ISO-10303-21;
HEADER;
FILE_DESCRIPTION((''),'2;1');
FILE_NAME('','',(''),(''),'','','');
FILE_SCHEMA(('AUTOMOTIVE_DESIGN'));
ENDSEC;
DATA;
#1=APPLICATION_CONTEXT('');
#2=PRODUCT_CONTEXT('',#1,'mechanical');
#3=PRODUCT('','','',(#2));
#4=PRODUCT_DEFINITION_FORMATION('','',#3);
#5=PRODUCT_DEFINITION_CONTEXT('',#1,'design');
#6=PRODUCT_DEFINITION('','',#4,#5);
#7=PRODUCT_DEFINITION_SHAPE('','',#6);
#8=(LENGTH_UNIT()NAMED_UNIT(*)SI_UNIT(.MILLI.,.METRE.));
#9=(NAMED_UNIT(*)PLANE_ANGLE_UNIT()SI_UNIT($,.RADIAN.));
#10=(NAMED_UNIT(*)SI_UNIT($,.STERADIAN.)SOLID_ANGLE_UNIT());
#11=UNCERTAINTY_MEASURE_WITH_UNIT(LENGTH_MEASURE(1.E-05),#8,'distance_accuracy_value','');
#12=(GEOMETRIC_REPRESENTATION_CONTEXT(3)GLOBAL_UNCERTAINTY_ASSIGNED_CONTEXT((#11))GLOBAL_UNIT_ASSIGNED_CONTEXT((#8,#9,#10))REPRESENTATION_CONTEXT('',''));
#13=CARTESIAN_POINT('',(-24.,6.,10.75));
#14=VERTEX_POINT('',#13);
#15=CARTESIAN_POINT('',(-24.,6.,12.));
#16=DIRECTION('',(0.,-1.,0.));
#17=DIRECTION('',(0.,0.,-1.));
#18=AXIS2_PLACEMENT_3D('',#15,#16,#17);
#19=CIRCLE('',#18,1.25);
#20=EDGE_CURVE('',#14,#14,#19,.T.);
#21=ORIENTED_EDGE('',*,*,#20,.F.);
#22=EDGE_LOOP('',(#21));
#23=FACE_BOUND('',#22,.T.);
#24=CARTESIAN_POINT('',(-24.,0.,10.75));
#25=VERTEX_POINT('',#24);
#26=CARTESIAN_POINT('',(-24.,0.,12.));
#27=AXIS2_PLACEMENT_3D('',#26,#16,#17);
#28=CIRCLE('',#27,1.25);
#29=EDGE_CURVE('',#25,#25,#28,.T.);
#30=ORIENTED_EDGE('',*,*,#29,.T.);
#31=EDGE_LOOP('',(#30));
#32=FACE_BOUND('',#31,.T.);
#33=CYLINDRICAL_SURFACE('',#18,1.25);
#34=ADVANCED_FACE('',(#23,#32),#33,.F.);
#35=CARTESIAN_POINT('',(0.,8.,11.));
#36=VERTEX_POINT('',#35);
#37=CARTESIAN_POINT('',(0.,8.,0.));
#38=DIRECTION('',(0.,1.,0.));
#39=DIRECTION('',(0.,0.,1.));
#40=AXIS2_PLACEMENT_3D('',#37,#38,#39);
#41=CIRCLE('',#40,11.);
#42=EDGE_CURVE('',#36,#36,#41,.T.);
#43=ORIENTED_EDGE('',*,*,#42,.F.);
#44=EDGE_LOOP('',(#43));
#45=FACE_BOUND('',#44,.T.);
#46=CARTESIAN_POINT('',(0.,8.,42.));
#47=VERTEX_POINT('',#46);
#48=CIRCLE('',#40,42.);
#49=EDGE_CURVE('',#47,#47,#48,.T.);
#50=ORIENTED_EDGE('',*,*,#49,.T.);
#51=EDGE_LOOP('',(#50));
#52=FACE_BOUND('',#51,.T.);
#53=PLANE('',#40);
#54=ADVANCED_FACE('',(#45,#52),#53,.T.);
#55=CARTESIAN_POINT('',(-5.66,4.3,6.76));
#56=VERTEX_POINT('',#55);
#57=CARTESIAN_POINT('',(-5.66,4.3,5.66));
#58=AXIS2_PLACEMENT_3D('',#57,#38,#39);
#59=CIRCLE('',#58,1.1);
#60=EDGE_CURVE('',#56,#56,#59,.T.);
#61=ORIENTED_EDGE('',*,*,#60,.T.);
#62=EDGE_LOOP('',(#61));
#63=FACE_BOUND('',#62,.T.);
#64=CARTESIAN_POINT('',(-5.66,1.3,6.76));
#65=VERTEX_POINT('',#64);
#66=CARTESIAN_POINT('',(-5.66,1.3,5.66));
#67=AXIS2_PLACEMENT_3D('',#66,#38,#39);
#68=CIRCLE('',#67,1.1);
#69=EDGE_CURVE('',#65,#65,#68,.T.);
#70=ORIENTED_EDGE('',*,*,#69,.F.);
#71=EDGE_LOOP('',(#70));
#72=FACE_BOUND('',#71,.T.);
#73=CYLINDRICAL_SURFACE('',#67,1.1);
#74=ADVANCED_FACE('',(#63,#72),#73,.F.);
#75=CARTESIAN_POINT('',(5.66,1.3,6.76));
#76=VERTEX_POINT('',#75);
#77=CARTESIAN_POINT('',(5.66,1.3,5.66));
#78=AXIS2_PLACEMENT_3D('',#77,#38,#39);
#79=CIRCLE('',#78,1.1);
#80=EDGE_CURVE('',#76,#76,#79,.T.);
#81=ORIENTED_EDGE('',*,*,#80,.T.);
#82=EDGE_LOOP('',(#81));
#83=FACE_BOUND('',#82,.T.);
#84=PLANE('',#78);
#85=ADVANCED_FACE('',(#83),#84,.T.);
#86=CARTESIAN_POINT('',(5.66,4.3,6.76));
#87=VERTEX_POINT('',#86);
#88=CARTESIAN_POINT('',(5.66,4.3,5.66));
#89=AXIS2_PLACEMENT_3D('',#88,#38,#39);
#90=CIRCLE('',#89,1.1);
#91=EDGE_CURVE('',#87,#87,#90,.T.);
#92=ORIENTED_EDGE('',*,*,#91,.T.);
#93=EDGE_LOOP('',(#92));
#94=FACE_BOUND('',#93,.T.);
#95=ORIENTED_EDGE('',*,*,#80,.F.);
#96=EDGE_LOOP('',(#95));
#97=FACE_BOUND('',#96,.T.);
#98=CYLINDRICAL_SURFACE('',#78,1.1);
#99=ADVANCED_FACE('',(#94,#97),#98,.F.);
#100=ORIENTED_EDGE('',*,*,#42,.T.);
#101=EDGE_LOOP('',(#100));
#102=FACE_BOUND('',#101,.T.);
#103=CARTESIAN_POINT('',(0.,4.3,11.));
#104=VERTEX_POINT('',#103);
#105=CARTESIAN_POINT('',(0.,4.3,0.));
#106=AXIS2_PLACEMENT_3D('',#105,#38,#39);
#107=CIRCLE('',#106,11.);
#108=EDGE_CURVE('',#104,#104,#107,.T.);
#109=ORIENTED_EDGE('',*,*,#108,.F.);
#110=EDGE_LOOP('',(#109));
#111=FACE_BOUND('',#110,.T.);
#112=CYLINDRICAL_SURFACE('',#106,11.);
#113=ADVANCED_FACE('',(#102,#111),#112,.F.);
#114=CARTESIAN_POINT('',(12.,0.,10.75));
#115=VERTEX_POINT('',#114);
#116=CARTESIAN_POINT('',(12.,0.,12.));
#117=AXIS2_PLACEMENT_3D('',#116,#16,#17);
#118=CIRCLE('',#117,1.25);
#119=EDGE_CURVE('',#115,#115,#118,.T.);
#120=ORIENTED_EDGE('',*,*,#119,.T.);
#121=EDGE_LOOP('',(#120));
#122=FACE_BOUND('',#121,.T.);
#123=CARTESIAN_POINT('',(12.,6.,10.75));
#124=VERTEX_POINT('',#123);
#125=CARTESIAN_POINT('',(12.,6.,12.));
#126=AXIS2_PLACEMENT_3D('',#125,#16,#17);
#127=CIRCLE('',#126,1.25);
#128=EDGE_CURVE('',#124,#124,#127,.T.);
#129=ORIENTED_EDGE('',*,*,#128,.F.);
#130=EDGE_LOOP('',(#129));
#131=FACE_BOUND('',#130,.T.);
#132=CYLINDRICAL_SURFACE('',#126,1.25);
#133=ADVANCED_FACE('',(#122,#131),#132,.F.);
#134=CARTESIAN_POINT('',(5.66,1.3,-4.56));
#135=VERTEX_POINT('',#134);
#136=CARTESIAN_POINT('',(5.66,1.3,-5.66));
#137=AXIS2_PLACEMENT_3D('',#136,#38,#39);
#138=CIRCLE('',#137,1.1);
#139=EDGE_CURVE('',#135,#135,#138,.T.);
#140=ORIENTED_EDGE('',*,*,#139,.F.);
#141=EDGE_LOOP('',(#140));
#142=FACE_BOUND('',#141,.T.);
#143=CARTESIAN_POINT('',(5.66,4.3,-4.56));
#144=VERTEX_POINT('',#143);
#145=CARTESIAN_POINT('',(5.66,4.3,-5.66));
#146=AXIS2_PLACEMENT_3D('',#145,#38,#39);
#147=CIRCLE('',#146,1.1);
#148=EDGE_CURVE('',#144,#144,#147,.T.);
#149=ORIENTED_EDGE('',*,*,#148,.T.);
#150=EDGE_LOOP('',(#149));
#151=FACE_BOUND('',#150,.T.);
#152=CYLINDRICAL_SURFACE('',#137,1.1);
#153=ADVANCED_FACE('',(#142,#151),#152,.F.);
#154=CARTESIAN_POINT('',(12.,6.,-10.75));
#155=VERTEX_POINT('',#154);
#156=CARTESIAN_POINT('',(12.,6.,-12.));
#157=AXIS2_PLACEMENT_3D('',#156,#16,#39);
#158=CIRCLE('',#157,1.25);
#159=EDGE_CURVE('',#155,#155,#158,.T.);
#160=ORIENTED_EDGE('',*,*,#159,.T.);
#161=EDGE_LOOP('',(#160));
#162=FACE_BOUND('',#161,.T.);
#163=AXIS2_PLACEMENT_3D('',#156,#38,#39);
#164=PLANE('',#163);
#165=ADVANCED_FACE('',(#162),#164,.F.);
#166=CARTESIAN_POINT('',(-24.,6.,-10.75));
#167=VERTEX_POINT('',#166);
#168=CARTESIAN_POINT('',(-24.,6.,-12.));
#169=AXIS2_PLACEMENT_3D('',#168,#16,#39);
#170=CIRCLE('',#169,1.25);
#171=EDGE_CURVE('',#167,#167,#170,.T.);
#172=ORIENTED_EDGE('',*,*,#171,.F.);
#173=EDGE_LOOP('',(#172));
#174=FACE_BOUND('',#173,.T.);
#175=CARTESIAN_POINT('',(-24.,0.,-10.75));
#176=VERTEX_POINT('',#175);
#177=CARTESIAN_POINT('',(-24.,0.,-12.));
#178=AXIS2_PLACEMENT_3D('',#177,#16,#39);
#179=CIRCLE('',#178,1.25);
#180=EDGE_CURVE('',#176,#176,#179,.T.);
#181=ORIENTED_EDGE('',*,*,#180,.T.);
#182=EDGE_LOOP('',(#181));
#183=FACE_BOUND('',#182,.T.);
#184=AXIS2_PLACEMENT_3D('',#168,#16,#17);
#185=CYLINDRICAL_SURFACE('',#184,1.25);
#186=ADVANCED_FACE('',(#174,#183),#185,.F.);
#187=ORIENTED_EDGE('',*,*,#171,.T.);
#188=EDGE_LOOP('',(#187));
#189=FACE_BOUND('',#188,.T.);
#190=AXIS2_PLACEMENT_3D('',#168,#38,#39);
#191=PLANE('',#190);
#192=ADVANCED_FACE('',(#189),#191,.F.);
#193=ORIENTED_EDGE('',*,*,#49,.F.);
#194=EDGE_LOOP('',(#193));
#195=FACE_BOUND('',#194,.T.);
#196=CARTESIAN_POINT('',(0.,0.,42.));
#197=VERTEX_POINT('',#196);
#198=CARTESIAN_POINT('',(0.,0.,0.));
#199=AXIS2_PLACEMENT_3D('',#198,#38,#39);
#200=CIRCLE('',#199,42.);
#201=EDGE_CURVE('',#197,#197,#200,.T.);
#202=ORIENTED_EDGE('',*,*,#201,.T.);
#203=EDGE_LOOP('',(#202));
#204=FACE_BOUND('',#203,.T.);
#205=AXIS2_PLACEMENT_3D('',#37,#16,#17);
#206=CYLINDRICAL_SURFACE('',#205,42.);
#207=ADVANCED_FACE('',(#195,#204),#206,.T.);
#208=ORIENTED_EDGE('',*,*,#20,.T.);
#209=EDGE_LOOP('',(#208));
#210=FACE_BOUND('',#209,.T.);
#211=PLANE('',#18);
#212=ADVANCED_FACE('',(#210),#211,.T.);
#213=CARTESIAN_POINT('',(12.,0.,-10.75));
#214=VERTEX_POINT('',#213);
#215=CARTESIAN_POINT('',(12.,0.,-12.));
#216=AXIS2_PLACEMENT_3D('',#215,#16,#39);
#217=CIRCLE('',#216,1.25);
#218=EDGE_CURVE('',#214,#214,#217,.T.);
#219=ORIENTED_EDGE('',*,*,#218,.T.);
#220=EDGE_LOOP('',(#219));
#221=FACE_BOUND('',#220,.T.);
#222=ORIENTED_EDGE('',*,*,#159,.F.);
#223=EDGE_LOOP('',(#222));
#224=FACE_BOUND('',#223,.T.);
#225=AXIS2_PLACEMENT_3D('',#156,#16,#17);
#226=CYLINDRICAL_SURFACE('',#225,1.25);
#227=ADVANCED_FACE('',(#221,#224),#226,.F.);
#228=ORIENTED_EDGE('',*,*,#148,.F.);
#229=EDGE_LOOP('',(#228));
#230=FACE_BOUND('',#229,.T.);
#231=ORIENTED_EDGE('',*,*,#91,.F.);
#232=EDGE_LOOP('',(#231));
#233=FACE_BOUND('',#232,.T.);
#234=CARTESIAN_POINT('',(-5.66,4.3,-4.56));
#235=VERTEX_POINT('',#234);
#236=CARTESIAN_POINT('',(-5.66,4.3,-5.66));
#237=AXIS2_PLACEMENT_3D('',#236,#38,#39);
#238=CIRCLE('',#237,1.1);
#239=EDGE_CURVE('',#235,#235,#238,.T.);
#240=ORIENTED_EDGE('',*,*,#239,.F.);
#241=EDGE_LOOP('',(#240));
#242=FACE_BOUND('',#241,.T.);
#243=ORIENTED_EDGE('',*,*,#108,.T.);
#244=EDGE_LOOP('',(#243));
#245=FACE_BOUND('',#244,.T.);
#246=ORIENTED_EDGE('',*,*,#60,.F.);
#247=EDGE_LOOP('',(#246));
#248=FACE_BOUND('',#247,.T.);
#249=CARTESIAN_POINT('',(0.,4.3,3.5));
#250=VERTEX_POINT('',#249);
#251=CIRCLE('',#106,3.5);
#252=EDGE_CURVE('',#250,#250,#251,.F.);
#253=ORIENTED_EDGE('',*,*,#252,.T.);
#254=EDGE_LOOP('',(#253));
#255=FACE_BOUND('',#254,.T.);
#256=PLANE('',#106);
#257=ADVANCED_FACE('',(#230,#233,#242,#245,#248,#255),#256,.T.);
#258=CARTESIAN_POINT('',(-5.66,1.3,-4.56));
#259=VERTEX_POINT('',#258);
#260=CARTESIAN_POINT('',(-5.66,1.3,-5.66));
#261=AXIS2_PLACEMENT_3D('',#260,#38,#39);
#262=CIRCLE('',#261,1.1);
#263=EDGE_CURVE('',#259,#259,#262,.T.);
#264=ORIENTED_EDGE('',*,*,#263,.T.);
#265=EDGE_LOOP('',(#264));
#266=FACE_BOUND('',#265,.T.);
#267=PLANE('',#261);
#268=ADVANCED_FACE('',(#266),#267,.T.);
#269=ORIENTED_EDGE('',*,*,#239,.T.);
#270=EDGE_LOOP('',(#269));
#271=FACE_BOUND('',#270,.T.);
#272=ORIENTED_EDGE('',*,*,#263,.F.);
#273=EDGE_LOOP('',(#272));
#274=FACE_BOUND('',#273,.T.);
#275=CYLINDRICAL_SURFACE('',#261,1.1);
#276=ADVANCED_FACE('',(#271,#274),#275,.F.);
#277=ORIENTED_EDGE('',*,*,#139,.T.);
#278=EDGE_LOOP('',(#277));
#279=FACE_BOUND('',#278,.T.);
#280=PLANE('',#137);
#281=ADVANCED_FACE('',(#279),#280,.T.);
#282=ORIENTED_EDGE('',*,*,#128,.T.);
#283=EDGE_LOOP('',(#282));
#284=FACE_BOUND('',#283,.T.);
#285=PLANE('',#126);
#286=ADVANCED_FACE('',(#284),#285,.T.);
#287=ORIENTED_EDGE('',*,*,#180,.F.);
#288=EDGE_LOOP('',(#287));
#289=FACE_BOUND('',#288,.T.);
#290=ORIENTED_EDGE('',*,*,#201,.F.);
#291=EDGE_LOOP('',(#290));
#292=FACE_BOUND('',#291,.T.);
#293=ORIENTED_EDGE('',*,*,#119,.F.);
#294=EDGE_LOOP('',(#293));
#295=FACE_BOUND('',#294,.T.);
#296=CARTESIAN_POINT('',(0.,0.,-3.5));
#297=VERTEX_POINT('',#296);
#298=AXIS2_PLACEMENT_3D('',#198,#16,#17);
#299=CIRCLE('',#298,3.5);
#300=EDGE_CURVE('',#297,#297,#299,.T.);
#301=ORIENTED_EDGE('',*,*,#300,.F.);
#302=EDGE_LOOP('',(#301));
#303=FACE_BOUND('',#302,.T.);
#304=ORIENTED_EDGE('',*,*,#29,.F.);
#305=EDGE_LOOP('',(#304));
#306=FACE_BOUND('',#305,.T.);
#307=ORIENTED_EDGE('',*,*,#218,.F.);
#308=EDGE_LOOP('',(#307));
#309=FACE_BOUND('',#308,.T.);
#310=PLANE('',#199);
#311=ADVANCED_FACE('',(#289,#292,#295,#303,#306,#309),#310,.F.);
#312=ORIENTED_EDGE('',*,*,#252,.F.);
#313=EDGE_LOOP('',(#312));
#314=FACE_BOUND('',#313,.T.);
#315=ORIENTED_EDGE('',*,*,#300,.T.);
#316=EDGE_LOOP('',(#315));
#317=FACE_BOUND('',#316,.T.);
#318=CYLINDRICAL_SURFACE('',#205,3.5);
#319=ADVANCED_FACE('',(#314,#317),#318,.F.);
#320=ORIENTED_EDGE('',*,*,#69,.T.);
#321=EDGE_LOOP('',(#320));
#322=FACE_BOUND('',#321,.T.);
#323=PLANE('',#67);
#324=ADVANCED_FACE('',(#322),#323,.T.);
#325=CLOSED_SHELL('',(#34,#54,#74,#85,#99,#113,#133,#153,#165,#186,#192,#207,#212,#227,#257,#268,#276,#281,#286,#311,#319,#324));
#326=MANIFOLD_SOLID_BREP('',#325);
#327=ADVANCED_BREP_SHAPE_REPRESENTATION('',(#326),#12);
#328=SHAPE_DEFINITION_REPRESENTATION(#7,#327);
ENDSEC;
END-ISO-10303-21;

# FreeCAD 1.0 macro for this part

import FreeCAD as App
import Part
import Sketcher

V = App.Vector
Q = App.Units.Quantity

doc = App.newDocument("Part")
body = doc.addObject("PartDesign::Body", "Body")

# Sketch on XZ plane
sketch1 = body.newObject("Sketcher::SketchObject", "Sketch")
sketch1.AttachmentSupport = (doc.getObject("XZ_Plane"), [""])
sketch1.MapMode = "FlatFace"
sketch1.addGeometry(Part.Circle(V(0, 0, 0), V(0, 0, 1), 42), False)
sketch1.addConstraint([
    Sketcher.Constraint("Coincident", 0, 3, -1, 1),
    Sketcher.Constraint("Diameter", 0, Q("84 mm")),
])
pad1 = body.newObject("PartDesign::Pad", "Pad")
pad1.Profile = sketch1
pad1.Length = 8
pad1.Reversed = True

# Sketch on XZ plane
sketch2 = body.newObject("Sketcher::SketchObject", "Sketch001")
sketch2.AttachmentSupport = (doc.getObject("XZ_Plane"), [""])
sketch2.MapMode = "FlatFace"
sketch2.addGeometry(Part.Circle(V(0, 0, 0), V(0, 0, 1), 3.5), False)
sketch2.addConstraint([
    Sketcher.Constraint("Coincident", 0, 3, -1, 1),
    Sketcher.Constraint("Diameter", 0, Q("7 mm")),
])
pocket1 = body.newObject("PartDesign::Pocket", "Pocket")
pocket1.Profile = sketch2
pocket1.Type = "ThroughAll"

# Sketch on XZ plane
sketch3 = body.newObject("Sketcher::SketchObject", "Sketch002")
sketch3.AttachmentSupport = (doc.getObject("XZ_Plane"), [""])
sketch3.MapMode = "FlatFace"
sketch3.AttachmentOffset = App.Placement(V(0, 0, -8), App.Rotation())
sketch3.addGeometry(Part.Circle(V(0, 0, 0), V(0, 0, 1), 11), False)
sketch3.addConstraint([
    Sketcher.Constraint("Coincident", 0, 3, -1, 1),
    Sketcher.Constraint("Diameter", 0, Q("22 mm")),
])
pocket2 = body.newObject("PartDesign::Pocket", "Pocket001")
pocket2.Profile = sketch3
pocket2.Length = 3.7
pocket2.Reversed = True

# Sketch on XZ plane
sketch4 = body.newObject("Sketcher::SketchObject", "Sketch003")
sketch4.AttachmentSupport = (doc.getObject("XZ_Plane"), [""])
sketch4.MapMode = "FlatFace"
sketch4.AttachmentOffset = App.Placement(V(0, 0, -4.3), App.Rotation())
sketch4.addGeometry([
    Part.Circle(V(-5.66, -5.66, 0), V(0, 0, 1), 1.1),
    Part.Circle(V(5.66, -5.66, 0), V(0, 0, 1), 1.1),
    Part.Circle(V(5.66, 5.66, 0), V(0, 0, 1), 1.1),
    Part.Circle(V(-5.66, 5.66, 0), V(0, 0, 1), 1.1),
], False)
sketch4.addConstraint([
    Sketcher.Constraint("Equal", 0, 1),
    Sketcher.Constraint("Equal", 1, 2),
    Sketcher.Constraint("Equal", 2, 3),
    Sketcher.Constraint("Symmetric", 0, 3, 2, 3, -1, 1),
    Sketcher.Constraint("Symmetric", 1, 3, 3, 3, -1, 1),
    Sketcher.Constraint("Symmetric", 0, 3, 1, 3, -2),
    Sketcher.Constraint("Diameter", 0, Q("2.2 mm")),
    Sketcher.Constraint("DistanceX", 0, 3, -1, 1, Q("5.66 mm")),
    Sketcher.Constraint("DistanceY", 0, 3, -1, 1, Q("5.66 mm")),
])
pocket3 = body.newObject("PartDesign::Pocket", "Pocket002")
pocket3.Profile = sketch4
pocket3.Length = 3
pocket3.Reversed = True

# Sketch on XZ plane
sketch5 = body.newObject("Sketcher::SketchObject", "Sketch004")
sketch5.AttachmentSupport = (doc.getObject("XZ_Plane"), [""])
sketch5.MapMode = "FlatFace"
sketch5.addGeometry([
    Part.Circle(V(12, 12, 0), V(0, 0, 1), 1.25),
    Part.Circle(V(12, -12, 0), V(0, 0, 1), 1.25),
    Part.Circle(V(-24, 12, 0), V(0, 0, 1), 1.25),
    Part.Circle(V(-24, -12, 0), V(0, 0, 1), 1.25),
], False)
sketch5.addConstraint([
    Sketcher.Constraint("Equal", 0, 1),
    Sketcher.Constraint("Equal", 1, 2),
    Sketcher.Constraint("Equal", 2, 3),
    Sketcher.Constraint("Symmetric", 0, 3, 1, 3, -1),
    Sketcher.Constraint("Symmetric", 2, 3, 3, 3, -1),
    Sketcher.Constraint("Horizontal", 0, 3, 2, 3),
    Sketcher.Constraint("Diameter", 0, Q("2.5 mm")),
    Sketcher.Constraint("DistanceX", -1, 1, 0, 3, Q("12 mm")),
    Sketcher.Constraint("DistanceY", -1, 1, 0, 3, Q("12 mm")),
    Sketcher.Constraint("DistanceX", 2, 3, -1, 1, Q("24 mm")),
])
pocket4 = body.newObject("PartDesign::Pocket", "Pocket003")
pocket4.Profile = sketch5
pocket4.Length = 6

doc.recompute()
